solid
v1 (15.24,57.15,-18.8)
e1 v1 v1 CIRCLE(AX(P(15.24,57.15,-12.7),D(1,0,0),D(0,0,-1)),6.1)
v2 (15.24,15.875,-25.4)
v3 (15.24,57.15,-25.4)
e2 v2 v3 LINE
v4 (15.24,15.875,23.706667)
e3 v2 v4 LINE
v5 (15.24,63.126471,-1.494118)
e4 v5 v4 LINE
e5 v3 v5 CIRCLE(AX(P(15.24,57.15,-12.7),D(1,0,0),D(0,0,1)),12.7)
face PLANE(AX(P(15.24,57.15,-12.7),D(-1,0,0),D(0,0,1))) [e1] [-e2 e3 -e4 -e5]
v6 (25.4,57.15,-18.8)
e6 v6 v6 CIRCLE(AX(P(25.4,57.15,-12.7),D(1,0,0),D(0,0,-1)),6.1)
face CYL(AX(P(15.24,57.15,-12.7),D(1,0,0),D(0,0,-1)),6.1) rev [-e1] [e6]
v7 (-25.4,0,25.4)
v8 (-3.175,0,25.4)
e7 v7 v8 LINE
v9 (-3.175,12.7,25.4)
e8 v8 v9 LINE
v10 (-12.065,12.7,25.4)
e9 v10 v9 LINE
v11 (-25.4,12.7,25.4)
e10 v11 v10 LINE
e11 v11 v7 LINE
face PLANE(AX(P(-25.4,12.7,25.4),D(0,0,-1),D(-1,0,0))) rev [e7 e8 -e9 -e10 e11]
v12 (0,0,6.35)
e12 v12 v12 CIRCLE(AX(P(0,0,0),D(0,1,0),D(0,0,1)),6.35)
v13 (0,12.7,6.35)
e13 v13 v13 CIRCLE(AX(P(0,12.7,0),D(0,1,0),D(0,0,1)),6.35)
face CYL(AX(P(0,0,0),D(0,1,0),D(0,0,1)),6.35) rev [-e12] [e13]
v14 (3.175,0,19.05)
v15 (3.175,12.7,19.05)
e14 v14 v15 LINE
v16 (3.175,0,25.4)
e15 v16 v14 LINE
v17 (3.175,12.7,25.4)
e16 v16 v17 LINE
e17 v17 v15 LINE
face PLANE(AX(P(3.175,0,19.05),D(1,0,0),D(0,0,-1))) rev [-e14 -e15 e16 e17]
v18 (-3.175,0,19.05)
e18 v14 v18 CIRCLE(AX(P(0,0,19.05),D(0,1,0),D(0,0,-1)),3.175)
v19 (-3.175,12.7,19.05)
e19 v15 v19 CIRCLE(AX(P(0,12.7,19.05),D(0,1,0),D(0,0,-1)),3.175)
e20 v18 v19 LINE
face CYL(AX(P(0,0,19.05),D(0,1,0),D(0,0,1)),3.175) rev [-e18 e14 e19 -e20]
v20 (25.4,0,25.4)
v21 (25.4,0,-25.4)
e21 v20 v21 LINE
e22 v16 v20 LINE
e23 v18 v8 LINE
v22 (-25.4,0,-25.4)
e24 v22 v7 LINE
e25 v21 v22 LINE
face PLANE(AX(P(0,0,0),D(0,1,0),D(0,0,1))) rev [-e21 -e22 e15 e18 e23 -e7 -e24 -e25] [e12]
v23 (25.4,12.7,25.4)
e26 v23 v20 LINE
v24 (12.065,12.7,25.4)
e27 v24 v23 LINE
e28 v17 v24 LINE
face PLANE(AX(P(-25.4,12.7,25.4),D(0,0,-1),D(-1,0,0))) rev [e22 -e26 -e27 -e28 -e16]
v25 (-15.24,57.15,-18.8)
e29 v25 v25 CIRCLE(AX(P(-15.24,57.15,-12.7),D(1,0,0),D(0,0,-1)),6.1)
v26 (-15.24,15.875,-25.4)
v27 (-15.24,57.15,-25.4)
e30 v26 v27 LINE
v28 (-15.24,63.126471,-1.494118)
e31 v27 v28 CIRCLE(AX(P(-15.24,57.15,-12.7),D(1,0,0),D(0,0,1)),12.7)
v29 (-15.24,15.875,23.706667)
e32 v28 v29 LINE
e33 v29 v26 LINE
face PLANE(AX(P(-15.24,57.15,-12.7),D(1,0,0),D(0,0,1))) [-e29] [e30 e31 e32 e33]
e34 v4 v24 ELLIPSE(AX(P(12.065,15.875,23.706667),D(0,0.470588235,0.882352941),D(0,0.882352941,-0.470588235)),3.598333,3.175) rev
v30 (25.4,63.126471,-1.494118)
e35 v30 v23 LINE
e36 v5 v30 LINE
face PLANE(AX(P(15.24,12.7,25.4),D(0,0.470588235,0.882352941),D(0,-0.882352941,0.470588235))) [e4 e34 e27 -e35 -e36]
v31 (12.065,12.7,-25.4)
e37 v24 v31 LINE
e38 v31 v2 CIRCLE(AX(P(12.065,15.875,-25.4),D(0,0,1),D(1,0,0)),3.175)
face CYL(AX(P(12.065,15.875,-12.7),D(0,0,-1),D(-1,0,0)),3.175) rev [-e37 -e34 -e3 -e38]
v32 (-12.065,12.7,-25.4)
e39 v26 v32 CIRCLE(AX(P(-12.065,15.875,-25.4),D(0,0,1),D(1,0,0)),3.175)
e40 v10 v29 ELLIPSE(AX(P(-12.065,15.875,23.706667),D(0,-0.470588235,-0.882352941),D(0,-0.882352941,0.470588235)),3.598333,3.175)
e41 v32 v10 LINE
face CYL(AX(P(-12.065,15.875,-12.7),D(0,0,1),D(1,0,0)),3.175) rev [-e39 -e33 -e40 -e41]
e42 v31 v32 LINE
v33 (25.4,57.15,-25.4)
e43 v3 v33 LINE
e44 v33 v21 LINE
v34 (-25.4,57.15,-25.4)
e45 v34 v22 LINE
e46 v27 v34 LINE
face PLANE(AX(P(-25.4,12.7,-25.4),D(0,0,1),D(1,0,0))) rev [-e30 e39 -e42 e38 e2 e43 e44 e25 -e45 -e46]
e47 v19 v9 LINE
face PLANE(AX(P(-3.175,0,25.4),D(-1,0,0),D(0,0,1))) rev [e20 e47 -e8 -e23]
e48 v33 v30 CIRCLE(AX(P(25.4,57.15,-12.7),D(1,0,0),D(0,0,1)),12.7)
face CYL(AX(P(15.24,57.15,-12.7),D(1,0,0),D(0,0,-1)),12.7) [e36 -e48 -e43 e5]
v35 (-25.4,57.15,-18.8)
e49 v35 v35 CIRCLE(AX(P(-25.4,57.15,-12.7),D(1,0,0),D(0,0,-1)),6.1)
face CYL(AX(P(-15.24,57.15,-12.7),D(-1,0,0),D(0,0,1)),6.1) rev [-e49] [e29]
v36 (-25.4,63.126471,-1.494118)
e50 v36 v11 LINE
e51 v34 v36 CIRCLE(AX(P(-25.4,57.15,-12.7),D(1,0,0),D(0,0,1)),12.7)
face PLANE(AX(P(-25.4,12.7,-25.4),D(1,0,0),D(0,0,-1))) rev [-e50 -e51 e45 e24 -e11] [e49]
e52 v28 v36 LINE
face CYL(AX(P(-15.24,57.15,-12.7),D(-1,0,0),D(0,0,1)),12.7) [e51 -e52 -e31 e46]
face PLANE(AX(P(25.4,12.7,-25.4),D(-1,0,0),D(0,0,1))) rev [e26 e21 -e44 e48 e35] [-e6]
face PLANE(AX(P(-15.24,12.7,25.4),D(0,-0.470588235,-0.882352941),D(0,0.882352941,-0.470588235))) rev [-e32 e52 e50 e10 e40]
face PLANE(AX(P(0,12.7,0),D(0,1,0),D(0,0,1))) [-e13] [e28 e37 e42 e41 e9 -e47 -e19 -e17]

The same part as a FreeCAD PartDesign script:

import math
import FreeCAD as App
import Part
import Sketcher

V = App.Vector
Q = App.Units.Quantity


def edges_at(feature, points):
    """Names of the edges that pass closest to the given points."""
    edges = feature.Shape.Edges
    near = lambda p: min(range(len(edges)), key=lambda i: edges[i].distToShape(Part.Vertex(*p))[0])
    return sorted({f"Edge{near(p) + 1}" for p in points})

doc = App.newDocument("Part")
body = doc.addObject("PartDesign::Body", "Body")

# Sketch on XZ plane
sketch1 = body.newObject("Sketcher::SketchObject", "Sketch")
sketch1.AttachmentSupport = (doc.getObject("XZ_Plane"), [""])
sketch1.MapMode = "FlatFace"
sketch1.addGeometry(Part.LineSegment(V(-25.4, -25.4, 0), V(-25.4, 25.4, 0)), False)
sketch1.addGeometry(Part.LineSegment(V(-25.4, 25.4, 0), V(25.4, 25.4, 0)), False)
sketch1.addGeometry(Part.LineSegment(V(25.4, 25.4, 0), V(25.4, -25.4, 0)), False)
sketch1.addGeometry(Part.LineSegment(V(25.4, -25.4, 0), V(-25.4, -25.4, 0)), False)
sketch1.addConstraint(Sketcher.Constraint("Coincident", 0, 2, 1, 1))
sketch1.addConstraint(Sketcher.Constraint("Coincident", 1, 2, 2, 1))
sketch1.addConstraint(Sketcher.Constraint("Coincident", 2, 2, 3, 1))
sketch1.addConstraint(Sketcher.Constraint("Coincident", 3, 2, 0, 1))
sketch1.addConstraint(Sketcher.Constraint("Vertical", 0))
sketch1.addConstraint(Sketcher.Constraint("Horizontal", 1))
sketch1.addConstraint(Sketcher.Constraint("Vertical", 2))
sketch1.addConstraint(Sketcher.Constraint("Horizontal", 3))
sketch1.addConstraint(Sketcher.Constraint("Symmetric", 0, 2, 2, 2, -1, 1))
sketch1.addConstraint(Sketcher.Constraint("Equal", 3, 0))
sketch1.addConstraint(Sketcher.Constraint("DistanceX", 1, 1, 1, 2, Q("2 in")))
pad1 = body.newObject("PartDesign::Pad", "Pad")
pad1.Profile = sketch1
pad1.Length = Q("0.5 in")
pad1.Reversed = True

# Sketch on YZ plane
sketch2 = body.newObject("Sketcher::SketchObject", "Sketch001")
sketch2.AttachmentSupport = (doc.getObject("YZ_Plane"), [""])
sketch2.MapMode = "FlatFace"
sketch2.AttachmentOffset = App.Placement(V(0, 0, 1 * 25.4), App.Rotation())
sketch2.addGeometry(Part.LineSegment(V(12.7, 25.4, 0), V(0, 25.4, 0)), False)
sketch2.addGeometry(Part.LineSegment(V(0, 25.4, 0), V(0, -25.4, 0)), False)
sketch2.addGeometry(Part.LineSegment(V(0, -25.4, 0), V(57.15, -25.4, 0)), False)
sketch2.addGeometry(Part.ArcOfCircle(Part.Circle(V(57.15, -12.7, 0), V(0, 0, 1), 12.7), math.radians(-90), math.radians(61.927513)), False)
sketch2.addGeometry(Part.LineSegment(V(63.126471, -1.494118, 0), V(12.7, 25.4, 0)), False)
sketch2.addGeometry(Part.Circle(V(57.15, -12.7, 0), V(0, 0, 1), 6.1), False)
sketch2.addConstraint(Sketcher.Constraint("Coincident", 0, 2, 1, 1))
sketch2.addConstraint(Sketcher.Constraint("Coincident", 1, 2, 2, 1))
sketch2.addConstraint(Sketcher.Constraint("Tangent", 2, 2, 3, 1))
sketch2.addConstraint(Sketcher.Constraint("Tangent", 3, 2, 4, 1))
sketch2.addConstraint(Sketcher.Constraint("Coincident", 4, 2, 0, 1))
sketch2.addConstraint(Sketcher.Constraint("Horizontal", 0))
sketch2.addConstraint(Sketcher.Constraint("Vertical", 1))
sketch2.addConstraint(Sketcher.Constraint("Horizontal", 2))
sketch2.addConstraint(Sketcher.Constraint("Coincident", 5, 3, 3, 3))
sketch2.addConstraint(Sketcher.Constraint("Symmetric", 0, 2, 1, 2, -1, 1))
sketch2.addConstraint(Sketcher.Constraint("Radius", 3, Q("0.5 in")))
sketch2.addConstraint(Sketcher.Constraint("DistanceY", 1, 2, 1, 1, Q("2 in")))
sketch2.addConstraint(Sketcher.Constraint("DistanceX", 0, 2, 0, 1, Q("0.5 in")))
sketch2.addConstraint(Sketcher.Constraint("DistanceX", 2, 1, 2, 2, Q("2.25 in")))
sketch2.addConstraint(Sketcher.Constraint("Diameter", 5, Q("12.2 mm")))
pad2 = body.newObject("PartDesign::Pad", "Pad001")
pad2.Profile = sketch2
pad2.Length = Q("0.4 in")
pad2.Reversed = True
doc.recompute()

mirrored = body.newObject("PartDesign::Mirrored", "Mirrored")
mirrored.Originals = [pad2]
mirrored.MirrorPlane = (doc.getObject("YZ_Plane"), [""])
body.Tip = mirrored

# Sketch on XZ plane
sketch3 = body.newObject("Sketcher::SketchObject", "Sketch002")
sketch3.AttachmentSupport = (doc.getObject("XZ_Plane"), [""])
sketch3.MapMode = "FlatFace"
sketch3.AttachmentOffset = App.Placement(V(0, 0, -0.5 * 25.4), App.Rotation())
sketch3.addGeometry(Part.Circle(V(0, 0, 0), V(0, 0, 1), 6.35), False)
sketch3.addGeometry(Part.LineSegment(V(-3.175, 19.05, 0), V(-3.175, 25.4, 0)), False)
sketch3.addGeometry(Part.LineSegment(V(-3.175, 25.4, 0), V(3.175, 25.4, 0)), False)
sketch3.addGeometry(Part.LineSegment(V(3.175, 25.4, 0), V(3.175, 19.05, 0)), False)
sketch3.addGeometry(Part.ArcOfCircle(Part.Circle(V(0, 19.05, 0), V(0, 0, 1), 3.175), math.radians(180), math.radians(360)), False)
sketch3.addConstraint(Sketcher.Constraint("Coincident", 1, 2, 2, 1))
sketch3.addConstraint(Sketcher.Constraint("Coincident", 2, 2, 3, 1))
sketch3.addConstraint(Sketcher.Constraint("Tangent", 3, 2, 4, 2))
sketch3.addConstraint(Sketcher.Constraint("Tangent", 4, 1, 1, 1))
sketch3.addConstraint(Sketcher.Constraint("Vertical", 1))
sketch3.addConstraint(Sketcher.Constraint("Horizontal", 2))
sketch3.addConstraint(Sketcher.Constraint("Vertical", 3))
sketch3.addConstraint(Sketcher.Constraint("Coincident", 0, 3, -1, 1))
sketch3.addConstraint(Sketcher.Constraint("PointOnObject", 4, 3, -2))
sketch3.addConstraint(Sketcher.Constraint("Equal", 2, 1))
sketch3.addConstraint(Sketcher.Constraint("Diameter", 0, Q("0.5 in")))
sketch3.addConstraint(Sketcher.Constraint("DistanceY", -1, 1, 1, 2, Q("1 in")))
sketch3.addConstraint(Sketcher.Constraint("Radius", 4, Q("0.125 in")))
pocket1 = body.newObject("PartDesign::Pocket", "Pocket")
pocket1.Profile = sketch3
pocket1.Type = "ThroughAll"
pocket1.Reversed = True
doc.recompute()

fillet = body.newObject("PartDesign::Fillet", "Fillet")
fillet.Base = (pocket1, edges_at(pocket1, [(15.24, 12.7, 0), (-15.24, 12.7, 0)]))
fillet.Radius = Q("0.125 in")

doc.recompute()
